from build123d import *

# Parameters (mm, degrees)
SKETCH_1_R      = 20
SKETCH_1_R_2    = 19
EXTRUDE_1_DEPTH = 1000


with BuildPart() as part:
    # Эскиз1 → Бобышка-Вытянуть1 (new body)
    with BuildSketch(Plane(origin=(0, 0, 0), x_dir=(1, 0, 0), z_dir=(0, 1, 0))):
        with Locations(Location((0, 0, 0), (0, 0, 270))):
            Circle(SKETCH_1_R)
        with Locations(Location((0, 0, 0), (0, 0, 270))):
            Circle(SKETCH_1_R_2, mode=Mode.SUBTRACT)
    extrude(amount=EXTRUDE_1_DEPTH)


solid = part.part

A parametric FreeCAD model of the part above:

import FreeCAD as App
import Part
import Sketcher

V = App.Vector
Q = App.Units.Quantity

doc = App.newDocument("Part")
body = doc.addObject("PartDesign::Body", "Body")

# Sketch on XZ plane
sketch1 = body.newObject("Sketcher::SketchObject", "Sketch")
sketch1.AttachmentSupport = (doc.getObject("XZ_Plane"), [""])
sketch1.MapMode = "FlatFace"
sketch1.addGeometry([
    Part.Circle(V(0, 0, 0), V(0, 0, 1), 20),
    Part.Circle(V(0, 0, 0), V(0, 0, 1), 19),
], False)
sketch1.addConstraint([
    Sketcher.Constraint("Coincident", 0, 3, -1, 1),
    Sketcher.Constraint("Coincident", 1, 3, -1, 1),
    Sketcher.Constraint("Diameter", 0, Q("40 mm")),
    Sketcher.Constraint("Diameter", 1, Q("38 mm")),
])
pad1 = body.newObject("PartDesign::Pad", "Pad")
pad1.Profile = sketch1
pad1.Length = 1000
pad1.Reversed = True

doc.recompute()
